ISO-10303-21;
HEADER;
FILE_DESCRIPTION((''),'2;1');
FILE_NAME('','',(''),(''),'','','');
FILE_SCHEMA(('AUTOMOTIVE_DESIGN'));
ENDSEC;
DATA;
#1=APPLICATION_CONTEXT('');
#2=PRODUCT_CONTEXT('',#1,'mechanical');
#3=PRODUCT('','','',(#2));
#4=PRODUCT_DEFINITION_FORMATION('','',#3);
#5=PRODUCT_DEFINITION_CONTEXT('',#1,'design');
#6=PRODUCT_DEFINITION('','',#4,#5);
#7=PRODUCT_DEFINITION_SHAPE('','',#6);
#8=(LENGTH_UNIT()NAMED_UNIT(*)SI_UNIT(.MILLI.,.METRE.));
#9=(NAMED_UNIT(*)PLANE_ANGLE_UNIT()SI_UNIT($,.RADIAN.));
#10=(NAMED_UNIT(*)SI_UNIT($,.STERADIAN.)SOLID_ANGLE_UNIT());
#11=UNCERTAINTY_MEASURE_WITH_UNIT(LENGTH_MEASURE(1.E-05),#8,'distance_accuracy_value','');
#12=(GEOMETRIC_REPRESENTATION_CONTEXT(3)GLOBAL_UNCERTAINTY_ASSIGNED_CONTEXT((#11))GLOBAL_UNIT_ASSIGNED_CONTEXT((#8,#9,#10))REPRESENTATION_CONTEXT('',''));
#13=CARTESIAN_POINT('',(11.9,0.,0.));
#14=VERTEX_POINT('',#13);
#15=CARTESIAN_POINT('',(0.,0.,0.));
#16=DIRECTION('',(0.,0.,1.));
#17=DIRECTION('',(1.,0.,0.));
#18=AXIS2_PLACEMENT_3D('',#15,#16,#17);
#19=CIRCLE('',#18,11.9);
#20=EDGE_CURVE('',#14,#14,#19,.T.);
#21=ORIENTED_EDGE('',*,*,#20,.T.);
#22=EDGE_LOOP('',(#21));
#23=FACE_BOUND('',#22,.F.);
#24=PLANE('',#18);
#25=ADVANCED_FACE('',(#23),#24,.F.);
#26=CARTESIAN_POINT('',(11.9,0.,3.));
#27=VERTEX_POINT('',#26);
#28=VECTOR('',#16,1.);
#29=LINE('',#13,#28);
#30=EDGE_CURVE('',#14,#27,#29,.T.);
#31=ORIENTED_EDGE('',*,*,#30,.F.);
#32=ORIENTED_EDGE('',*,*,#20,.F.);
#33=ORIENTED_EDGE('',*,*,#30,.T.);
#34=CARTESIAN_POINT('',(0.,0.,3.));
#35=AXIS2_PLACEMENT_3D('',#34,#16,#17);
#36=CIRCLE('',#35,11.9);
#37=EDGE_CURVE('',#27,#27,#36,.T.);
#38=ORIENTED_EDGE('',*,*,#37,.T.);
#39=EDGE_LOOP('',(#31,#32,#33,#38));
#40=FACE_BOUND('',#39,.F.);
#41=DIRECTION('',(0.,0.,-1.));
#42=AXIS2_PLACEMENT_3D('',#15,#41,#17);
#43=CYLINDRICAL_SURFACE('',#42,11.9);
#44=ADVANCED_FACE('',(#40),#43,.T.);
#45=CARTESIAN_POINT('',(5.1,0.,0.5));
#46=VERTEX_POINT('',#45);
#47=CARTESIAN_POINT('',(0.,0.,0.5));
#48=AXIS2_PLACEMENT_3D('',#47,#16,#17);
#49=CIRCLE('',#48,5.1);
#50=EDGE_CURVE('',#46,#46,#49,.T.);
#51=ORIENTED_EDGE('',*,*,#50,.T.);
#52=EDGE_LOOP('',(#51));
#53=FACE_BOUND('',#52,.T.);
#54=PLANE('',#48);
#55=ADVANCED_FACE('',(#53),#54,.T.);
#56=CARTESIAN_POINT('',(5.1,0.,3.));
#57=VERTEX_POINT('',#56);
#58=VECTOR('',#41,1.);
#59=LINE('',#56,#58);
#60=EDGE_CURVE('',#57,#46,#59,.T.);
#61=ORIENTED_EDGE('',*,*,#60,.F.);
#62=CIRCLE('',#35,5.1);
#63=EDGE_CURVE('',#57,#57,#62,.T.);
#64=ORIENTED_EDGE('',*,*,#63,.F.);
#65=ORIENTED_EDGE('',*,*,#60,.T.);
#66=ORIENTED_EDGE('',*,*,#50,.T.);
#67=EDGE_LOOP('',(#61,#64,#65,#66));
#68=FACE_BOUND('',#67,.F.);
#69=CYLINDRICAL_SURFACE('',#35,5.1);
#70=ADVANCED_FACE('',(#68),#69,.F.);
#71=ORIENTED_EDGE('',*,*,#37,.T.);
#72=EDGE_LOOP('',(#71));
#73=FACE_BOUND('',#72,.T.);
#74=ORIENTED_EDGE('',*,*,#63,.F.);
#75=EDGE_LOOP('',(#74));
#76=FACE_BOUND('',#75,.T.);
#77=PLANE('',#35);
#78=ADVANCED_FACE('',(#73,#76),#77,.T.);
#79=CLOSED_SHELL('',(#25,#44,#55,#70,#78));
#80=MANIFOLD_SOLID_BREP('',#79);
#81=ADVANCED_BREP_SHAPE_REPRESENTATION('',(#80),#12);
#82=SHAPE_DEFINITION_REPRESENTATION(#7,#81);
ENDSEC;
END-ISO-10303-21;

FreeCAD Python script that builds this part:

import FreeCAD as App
import Part
import Sketcher
from FreeCAD import Vector
Q = App.Units.Quantity

doc = App.newDocument("Part")
body = doc.addObject("PartDesign::Body", "Body")

# Sketch on XY plane
sketch1 = body.newObject("Sketcher::SketchObject", "Sketch")
sketch1.AttachmentSupport = (doc.getObject("XY_Plane"), [""])
sketch1.MapMode = "FlatFace"
sketch1.addGeometry(Part.Circle(Vector(0, 0, 0), Vector(0, 0, 1), 12), False)
sketch1.addConstraint([
    Sketcher.Constraint("Coincident", 0, 3, -1, 1),
    Sketcher.Constraint("Diameter", 0, Q("23.8 mm")),
])
pad1 = body.newObject("PartDesign::Pad", "Pad")
pad1.Profile = sketch1
pad1.Length = 3

# Sketch on XY plane
sketch2 = body.newObject("Sketcher::SketchObject", "Sketch001")
sketch2.AttachmentSupport = (doc.getObject("XY_Plane"), [""])
sketch2.MapMode = "FlatFace"
sketch2.AttachmentOffset = App.Placement(Vector(0, 0, 3), App.Rotation())
sketch2.addGeometry(Part.Circle(Vector(0, 0, 0), Vector(0, 0, 1), 5), False)
sketch2.addConstraint([
    Sketcher.Constraint("Coincident", 0, 3, -1, 1),
    Sketcher.Constraint("Diameter", 0, Q("10.2 mm")),
])
pocket1 = body.newObject("PartDesign::Pocket", "Pocket")
pocket1.Profile = sketch2
pocket1.Length = 2.5

doc.recompute()
